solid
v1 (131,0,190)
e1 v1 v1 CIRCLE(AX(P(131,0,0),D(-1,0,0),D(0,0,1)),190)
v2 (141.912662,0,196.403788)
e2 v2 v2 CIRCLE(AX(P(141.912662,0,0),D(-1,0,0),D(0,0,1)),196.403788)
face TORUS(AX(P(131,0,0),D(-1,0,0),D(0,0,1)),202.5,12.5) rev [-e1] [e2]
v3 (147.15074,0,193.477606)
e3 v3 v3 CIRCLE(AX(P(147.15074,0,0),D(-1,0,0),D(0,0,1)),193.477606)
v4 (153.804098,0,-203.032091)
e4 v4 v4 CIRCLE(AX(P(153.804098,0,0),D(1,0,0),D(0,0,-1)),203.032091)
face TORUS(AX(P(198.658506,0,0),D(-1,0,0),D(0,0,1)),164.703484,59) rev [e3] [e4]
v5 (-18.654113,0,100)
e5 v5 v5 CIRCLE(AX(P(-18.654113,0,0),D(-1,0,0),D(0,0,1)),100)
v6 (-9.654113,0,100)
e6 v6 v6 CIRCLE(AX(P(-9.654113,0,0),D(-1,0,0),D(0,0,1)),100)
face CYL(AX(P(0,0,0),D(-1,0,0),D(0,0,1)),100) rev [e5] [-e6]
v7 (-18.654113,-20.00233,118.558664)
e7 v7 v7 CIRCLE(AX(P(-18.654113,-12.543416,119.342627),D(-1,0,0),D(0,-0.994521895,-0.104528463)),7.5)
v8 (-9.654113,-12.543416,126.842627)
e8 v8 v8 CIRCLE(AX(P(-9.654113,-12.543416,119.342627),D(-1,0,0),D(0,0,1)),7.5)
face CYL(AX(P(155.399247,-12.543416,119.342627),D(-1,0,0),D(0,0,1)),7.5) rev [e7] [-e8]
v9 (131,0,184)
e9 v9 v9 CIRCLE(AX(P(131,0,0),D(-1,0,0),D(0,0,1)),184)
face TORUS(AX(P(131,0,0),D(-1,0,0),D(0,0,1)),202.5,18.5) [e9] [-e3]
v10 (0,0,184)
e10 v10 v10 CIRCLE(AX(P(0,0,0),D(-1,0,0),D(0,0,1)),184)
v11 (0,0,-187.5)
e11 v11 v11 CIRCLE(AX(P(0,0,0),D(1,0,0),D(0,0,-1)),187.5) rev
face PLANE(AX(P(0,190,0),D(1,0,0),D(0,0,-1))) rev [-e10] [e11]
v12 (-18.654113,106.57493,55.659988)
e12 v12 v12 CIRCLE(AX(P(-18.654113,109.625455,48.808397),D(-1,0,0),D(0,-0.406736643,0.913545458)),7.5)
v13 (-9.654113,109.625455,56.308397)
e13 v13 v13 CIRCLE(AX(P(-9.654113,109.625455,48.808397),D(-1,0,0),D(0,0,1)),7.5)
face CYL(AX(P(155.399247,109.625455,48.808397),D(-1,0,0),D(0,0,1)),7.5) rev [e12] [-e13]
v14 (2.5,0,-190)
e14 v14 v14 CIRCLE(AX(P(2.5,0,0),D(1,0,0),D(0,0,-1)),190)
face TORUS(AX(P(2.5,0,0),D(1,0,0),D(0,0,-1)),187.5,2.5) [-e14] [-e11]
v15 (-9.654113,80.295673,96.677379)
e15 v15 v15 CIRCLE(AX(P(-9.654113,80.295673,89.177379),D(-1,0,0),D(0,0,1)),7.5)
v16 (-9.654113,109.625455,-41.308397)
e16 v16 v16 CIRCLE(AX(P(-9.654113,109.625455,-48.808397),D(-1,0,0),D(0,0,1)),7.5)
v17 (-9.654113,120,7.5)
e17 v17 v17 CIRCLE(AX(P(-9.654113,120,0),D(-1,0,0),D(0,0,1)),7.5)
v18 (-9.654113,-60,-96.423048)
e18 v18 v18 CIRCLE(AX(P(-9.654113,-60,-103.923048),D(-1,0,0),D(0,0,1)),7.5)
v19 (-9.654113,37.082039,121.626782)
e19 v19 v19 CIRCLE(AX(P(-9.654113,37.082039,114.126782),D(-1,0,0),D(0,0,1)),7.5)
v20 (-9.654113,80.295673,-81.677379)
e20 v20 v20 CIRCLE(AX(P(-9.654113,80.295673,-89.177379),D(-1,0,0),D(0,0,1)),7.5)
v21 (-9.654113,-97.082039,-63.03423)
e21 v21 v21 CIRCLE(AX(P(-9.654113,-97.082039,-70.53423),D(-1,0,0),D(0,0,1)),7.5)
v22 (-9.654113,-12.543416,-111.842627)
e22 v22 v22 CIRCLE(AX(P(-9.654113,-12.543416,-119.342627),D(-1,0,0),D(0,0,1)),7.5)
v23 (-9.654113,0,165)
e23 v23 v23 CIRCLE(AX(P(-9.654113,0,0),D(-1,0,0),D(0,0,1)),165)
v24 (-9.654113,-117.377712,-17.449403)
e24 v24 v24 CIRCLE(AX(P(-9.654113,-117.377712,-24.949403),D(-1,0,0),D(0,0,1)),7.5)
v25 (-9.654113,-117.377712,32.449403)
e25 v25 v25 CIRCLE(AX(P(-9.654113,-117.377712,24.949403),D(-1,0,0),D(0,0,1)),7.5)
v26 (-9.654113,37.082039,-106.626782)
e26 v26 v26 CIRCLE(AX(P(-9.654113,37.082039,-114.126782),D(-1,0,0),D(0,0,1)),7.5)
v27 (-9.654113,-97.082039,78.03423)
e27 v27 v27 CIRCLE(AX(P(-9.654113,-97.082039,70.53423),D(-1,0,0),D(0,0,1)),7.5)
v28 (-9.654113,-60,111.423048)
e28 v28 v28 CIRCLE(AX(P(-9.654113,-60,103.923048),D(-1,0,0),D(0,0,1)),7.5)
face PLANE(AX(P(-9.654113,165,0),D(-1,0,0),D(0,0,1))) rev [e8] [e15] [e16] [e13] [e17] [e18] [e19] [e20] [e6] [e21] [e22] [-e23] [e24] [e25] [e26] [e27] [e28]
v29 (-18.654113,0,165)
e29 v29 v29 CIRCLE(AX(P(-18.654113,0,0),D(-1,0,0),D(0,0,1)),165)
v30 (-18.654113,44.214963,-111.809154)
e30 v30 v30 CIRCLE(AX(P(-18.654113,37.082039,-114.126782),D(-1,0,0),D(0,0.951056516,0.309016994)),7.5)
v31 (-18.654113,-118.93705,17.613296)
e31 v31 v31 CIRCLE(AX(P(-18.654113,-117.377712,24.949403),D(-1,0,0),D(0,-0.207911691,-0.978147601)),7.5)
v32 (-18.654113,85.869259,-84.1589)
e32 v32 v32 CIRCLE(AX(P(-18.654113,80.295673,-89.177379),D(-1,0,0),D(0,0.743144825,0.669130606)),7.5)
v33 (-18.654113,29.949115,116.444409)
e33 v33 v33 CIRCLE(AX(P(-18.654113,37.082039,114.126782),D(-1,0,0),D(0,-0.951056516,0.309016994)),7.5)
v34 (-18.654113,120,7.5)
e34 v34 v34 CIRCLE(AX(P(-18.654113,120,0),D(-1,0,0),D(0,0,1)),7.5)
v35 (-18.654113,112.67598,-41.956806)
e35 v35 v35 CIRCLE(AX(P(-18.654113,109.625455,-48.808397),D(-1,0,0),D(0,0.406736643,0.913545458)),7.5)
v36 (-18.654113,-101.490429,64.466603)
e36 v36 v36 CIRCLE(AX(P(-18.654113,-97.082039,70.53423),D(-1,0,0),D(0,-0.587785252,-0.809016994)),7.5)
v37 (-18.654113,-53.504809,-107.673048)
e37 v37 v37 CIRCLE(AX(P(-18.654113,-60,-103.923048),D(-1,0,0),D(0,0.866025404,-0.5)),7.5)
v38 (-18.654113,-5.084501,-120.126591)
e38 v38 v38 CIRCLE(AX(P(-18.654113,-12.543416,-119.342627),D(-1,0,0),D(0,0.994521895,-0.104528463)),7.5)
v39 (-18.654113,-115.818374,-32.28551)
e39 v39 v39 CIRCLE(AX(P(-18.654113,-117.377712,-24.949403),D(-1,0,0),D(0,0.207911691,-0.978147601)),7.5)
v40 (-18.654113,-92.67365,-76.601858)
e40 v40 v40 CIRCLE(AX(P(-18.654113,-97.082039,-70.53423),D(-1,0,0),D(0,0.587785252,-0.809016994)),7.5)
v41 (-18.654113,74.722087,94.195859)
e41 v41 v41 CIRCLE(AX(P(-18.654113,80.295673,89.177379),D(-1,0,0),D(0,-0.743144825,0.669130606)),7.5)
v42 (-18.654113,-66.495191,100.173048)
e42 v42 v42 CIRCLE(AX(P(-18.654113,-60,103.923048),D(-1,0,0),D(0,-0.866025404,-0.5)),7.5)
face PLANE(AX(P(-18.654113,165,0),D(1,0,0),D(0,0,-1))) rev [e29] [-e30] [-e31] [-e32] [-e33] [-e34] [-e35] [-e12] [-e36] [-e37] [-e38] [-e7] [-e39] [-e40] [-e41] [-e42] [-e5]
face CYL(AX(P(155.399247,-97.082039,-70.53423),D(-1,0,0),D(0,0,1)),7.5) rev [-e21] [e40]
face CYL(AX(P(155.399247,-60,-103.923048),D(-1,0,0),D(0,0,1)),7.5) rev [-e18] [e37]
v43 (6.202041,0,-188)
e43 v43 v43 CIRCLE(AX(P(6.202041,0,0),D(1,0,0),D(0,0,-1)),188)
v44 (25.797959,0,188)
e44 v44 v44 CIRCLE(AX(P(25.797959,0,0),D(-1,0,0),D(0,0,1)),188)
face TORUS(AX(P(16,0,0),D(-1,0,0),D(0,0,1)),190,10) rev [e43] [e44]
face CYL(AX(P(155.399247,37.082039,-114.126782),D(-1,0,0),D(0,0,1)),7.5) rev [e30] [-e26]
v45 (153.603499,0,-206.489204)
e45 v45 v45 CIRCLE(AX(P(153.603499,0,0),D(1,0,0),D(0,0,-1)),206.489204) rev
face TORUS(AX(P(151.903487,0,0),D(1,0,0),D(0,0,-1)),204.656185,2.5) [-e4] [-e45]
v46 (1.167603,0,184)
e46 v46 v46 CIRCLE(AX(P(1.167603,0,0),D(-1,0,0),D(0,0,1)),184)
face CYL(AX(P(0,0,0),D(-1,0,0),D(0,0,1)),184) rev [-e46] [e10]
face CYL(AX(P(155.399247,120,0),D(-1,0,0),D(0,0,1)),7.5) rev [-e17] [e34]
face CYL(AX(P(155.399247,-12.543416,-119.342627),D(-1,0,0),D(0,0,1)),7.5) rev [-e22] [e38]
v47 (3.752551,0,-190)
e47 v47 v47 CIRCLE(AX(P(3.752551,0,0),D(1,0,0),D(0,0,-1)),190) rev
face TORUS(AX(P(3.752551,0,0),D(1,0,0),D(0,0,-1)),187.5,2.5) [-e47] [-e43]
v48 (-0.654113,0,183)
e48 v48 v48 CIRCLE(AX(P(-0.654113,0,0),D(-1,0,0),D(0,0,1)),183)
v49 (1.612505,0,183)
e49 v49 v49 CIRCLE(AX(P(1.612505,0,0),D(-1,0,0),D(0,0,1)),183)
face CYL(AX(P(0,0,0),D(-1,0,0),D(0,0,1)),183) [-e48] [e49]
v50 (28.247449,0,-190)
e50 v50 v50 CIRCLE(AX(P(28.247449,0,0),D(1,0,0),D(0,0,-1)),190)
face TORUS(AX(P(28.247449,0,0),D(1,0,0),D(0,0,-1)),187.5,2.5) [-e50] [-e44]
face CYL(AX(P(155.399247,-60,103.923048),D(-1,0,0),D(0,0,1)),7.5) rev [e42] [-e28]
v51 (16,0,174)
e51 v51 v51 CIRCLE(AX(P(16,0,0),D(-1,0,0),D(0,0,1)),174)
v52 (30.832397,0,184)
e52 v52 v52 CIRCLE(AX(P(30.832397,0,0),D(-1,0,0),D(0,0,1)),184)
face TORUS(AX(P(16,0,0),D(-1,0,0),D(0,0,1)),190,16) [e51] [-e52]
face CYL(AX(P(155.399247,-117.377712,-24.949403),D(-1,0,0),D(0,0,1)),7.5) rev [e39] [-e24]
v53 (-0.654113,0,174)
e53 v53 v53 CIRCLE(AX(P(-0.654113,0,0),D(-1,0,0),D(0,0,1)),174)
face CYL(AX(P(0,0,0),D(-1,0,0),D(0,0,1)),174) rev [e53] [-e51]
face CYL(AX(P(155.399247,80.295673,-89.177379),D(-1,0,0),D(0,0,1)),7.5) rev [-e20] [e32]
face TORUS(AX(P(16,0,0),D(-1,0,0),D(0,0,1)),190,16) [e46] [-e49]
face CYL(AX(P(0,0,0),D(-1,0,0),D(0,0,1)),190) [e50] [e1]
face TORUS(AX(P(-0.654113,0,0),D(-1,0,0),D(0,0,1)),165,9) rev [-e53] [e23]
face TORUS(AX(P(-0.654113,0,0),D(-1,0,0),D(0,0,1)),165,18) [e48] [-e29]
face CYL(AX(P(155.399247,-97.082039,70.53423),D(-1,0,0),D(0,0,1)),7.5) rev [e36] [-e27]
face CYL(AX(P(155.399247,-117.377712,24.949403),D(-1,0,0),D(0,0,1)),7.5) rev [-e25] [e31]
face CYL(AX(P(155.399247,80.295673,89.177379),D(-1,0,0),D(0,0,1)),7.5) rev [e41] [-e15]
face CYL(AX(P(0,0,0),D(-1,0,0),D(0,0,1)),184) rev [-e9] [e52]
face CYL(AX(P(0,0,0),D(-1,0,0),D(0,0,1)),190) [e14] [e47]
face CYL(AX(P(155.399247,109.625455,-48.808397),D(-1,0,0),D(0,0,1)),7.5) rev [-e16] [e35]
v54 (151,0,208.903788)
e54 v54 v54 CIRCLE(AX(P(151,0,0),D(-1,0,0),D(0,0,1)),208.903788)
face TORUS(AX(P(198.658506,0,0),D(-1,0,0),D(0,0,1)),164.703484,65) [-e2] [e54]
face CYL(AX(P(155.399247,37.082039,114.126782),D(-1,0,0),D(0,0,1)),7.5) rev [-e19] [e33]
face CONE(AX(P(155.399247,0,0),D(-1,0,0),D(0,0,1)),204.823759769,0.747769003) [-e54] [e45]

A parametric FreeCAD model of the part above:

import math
import FreeCAD as App
import Part
import Sketcher
Q = App.Units.Quantity


def edges_at(feature, points):
    """Names of the edges that pass closest to the given points."""
    edges = feature.Shape.Edges
    near = lambda p: min(range(len(edges)), key=lambda i: edges[i].distToShape(Part.Vertex(*p))[0])
    return sorted({f"Edge{near(p) + 1}" for p in points})

doc = App.newDocument("Part")
params = doc.addObject("Spreadsheet::Sheet", "Params")
for row, (alias, value) in enumerate([
    ("sketch1_radius", "16 mm"),
    ("sketch1_radius2", "18 mm"),
    ("sketch1_radius3", "9 mm"),
    ("sketch1_radius4", "59 mm"),
    ("sketch1_radius5", "65 mm"),
    ("revolution_angle", "360 deg"),
    ("sketch2_diameter", "15 mm"),
    ("fillet_radius", "2.5 mm"),
    ("fillet2_radius", "2.5 mm"),
    ("fillet3_radius", "2.5 mm"),
], start=1):
    params.set(f"A{row}", alias)
    params.set(f"B{row}", "=" + value)
    params.setAlias(f"B{row}", alias)

body = doc.addObject("PartDesign::Body", "Body")

sketch1 = doc.addObject("Sketcher::SketchObject", "Sketch")
body.addObject(sketch1)
sketch1.AttachmentSupport = (doc.XY_Plane, [""])
sketch1.MapMode = "FlatFace"
sketch1.addGeometry([
    Part.LineSegment(App.Vector(6, 190, 0), App.Vector(0, 190, 0)),
    Part.LineSegment(App.Vector(0, 190, 0), App.Vector(0, 184, 0)),
    Part.LineSegment(App.Vector(0, 184, 0), App.Vector(1.2, 184, 0)),
    Part.ArcOfCircle(Part.Circle(App.Vector(16, 190, 0), App.Vector(0, 0, 1), 16), math.radians(-157.98), math.radians(-154.06)),
    Part.LineSegment(App.Vector(1.6, 183, 0), App.Vector(-0.7, 183, 0)),
    Part.ArcOfCircle(Part.Circle(App.Vector(-0.7, 165, 0), App.Vector(0, 0, 1), 18), math.radians(90), math.radians(180)),
    Part.LineSegment(App.Vector(-18.7, 165, 0), App.Vector(-18.7, 100, 0)),
    Part.LineSegment(App.Vector(-18.7, 100, 0), App.Vector(-9.7, 100, 0)),
    Part.LineSegment(App.Vector(-9.7, 100, 0), App.Vector(-9.7, 165, 0)),
    Part.ArcOfCircle(Part.Circle(App.Vector(-0.7, 165, 0), App.Vector(0, 0, 1), 9), math.radians(90), math.radians(180)),
    Part.LineSegment(App.Vector(-0.7, 174, 0), App.Vector(16, 174, 0)),
    Part.ArcOfCircle(Part.Circle(App.Vector(16, 190, 0), App.Vector(0, 0, 1), 16), math.radians(-90), math.radians(-22)),
    Part.LineSegment(App.Vector(30.8, 184, 0), App.Vector(131, 184, 0)),
    Part.ArcOfCircle(Part.Circle(App.Vector(131, 202.5, 0), App.Vector(0, 0, 1), 18.5), math.radians(-90), math.radians(-29)),
    Part.ArcOfCircle(Part.Circle(App.Vector(198.7, 164.7, 0), App.Vector(0, 0, 1), 59), math.radians(137.16), math.radians(150.81)),
    Part.LineSegment(App.Vector(155.4, 204.8, 0), App.Vector(151, 208.9, 0)),
    Part.ArcOfCircle(Part.Circle(App.Vector(198.7, 164.7, 0), App.Vector(0, 0, 1), 65), math.radians(137.16), math.radians(150.81)),
    Part.ArcOfCircle(Part.Circle(App.Vector(131, 202.5, 0), App.Vector(0, 0, 1), 12.5), math.radians(-90), math.radians(-29)),
    Part.LineSegment(App.Vector(131, 190, 0), App.Vector(26, 190, 0)),
    Part.ArcOfCircle(Part.Circle(App.Vector(16, 190, 0), App.Vector(0, 0, 1), 10), math.radians(180), math.radians(360)),
], False)
sketch1.addConstraint([
    Sketcher.Constraint("Coincident", 0, 2, 1, 1),
    Sketcher.Constraint("Coincident", 1, 2, 2, 1),
    Sketcher.Constraint("Coincident", 2, 2, 3, 1),
    Sketcher.Constraint("Coincident", 3, 2, 4, 1),
    Sketcher.Constraint("Tangent", 4, 2, 5, 1),
    Sketcher.Constraint("Tangent", 5, 2, 6, 1),
    Sketcher.Constraint("Coincident", 6, 2, 7, 1),
    Sketcher.Constraint("Coincident", 7, 2, 8, 1),
    Sketcher.Constraint("Tangent", 8, 2, 9, 2),
    Sketcher.Constraint("Tangent", 9, 1, 10, 1),
    Sketcher.Constraint("Tangent", 10, 2, 11, 1),
    Sketcher.Constraint("Coincident", 11, 2, 12, 1),
    Sketcher.Constraint("Tangent", 12, 2, 13, 1),
    Sketcher.Constraint("Tangent", 13, 2, 14, 2),
    Sketcher.Constraint("Coincident", 14, 1, 15, 1),
    Sketcher.Constraint("Coincident", 15, 2, 16, 1),
    Sketcher.Constraint("Tangent", 16, 2, 17, 2),
    Sketcher.Constraint("Tangent", 17, 1, 18, 1),
    Sketcher.Constraint("Coincident", 18, 2, 19, 2),
    Sketcher.Constraint("Coincident", 19, 1, 0, 1),
    Sketcher.Constraint("Horizontal", 0),
    Sketcher.Constraint("Vertical", 1),
    Sketcher.Constraint("Horizontal", 2),
    Sketcher.Constraint("Horizontal", 4),
    Sketcher.Constraint("Vertical", 6),
    Sketcher.Constraint("Horizontal", 7),
    Sketcher.Constraint("Vertical", 8),
    Sketcher.Constraint("Horizontal", 10),
    Sketcher.Constraint("Horizontal", 12),
    Sketcher.Constraint("Horizontal", 18),
    Sketcher.Constraint("Coincident", 9, 3, 5, 3),
    Sketcher.Constraint("Coincident", 11, 3, 3, 3),
    Sketcher.Constraint("Coincident", 16, 3, 14, 3),
    Sketcher.Constraint("Coincident", 17, 3, 13, 3),
    Sketcher.Constraint("Coincident", 19, 3, 3, 3),
    Sketcher.Constraint("Equal", 3, 11),
    Sketcher.Constraint("PointOnObject", 0, 2, -2),
    Sketcher.Constraint("Horizontal", 19, 3, 0, 2),
    Sketcher.Constraint("Horizontal", 2, 2, 11, 2),
    Sketcher.Constraint("Horizontal", 0, 2, 17, 1),
    Sketcher.Constraint("Equal", 0, 1),
    Sketcher.Constraint("Radius", 3, Q("16 mm")),
    Sketcher.Constraint("Radius", 5, Q("18 mm")),
    Sketcher.Constraint("Radius", 9, Q("9 mm")),
    Sketcher.Constraint("Radius", 14, Q("59 mm")),
    Sketcher.Constraint("Radius", 16, Q("65 mm")),
    Sketcher.Constraint("Radius", 19, Q("10 mm")),
    Sketcher.Constraint("Radius", 13, Q("18.5 mm")),
    Sketcher.Constraint("DistanceX", 18, 2, 18, 1, Q("105 mm")),
    Sketcher.Constraint("DistanceY", 6, 2, 6, 1, Q("65 mm")),
    Sketcher.Constraint("DistanceY", -1, 1, 3, 3, Q("190 mm")),
    Sketcher.Constraint("DistanceX", -1, 1, 15, 2, Q("151 mm")),
    Sketcher.Constraint("DistanceY", 16, 2, 15, 2, Q("12.5 mm")),
    Sketcher.Constraint("DistanceX", 4, 2, 4, 1, Q("2.266619 mm")),
    Sketcher.Constraint("DistanceY", -1, 1, 14, 1, Q("204.82376 mm")),
])
sketch1.setExpression("Constraints[41]", "Params.sketch1_radius")
sketch1.setExpression("Constraints[42]", "Params.sketch1_radius2")
sketch1.setExpression("Constraints[43]", "Params.sketch1_radius3")
sketch1.setExpression("Constraints[44]", "Params.sketch1_radius4")
sketch1.setExpression("Constraints[45]", "Params.sketch1_radius5")
revolution = doc.addObject("PartDesign::Revolution", "Revolution")
body.addObject(revolution)
revolution.Profile = sketch1
revolution.ReferenceAxis = (sketch1, ["H_Axis"])
revolution.setExpression("Angle", "Params.revolution_angle")

sketch2 = doc.addObject("Sketcher::SketchObject", "Sketch001")
body.addObject(sketch2)
sketch2.AttachmentSupport = (doc.YZ_Plane, [""])
sketch2.MapMode = "FlatFace"
sketch2.AttachmentOffset = App.Placement(App.Vector(0, 0, -18.654113), App.Rotation())
sketch2.addGeometry(Part.Circle(App.Vector(120, 0, 0), App.Vector(0, 0, 1), 8), False)
sketch2.addConstraint([
    Sketcher.Constraint("PointOnObject", 0, 3, -1),
    Sketcher.Constraint("Diameter", 0, Q("15 mm")),
    Sketcher.Constraint("DistanceX", -1, 1, 0, 3, Q("120 mm")),
])
sketch2.setExpression("Constraints[1]", "Params.sketch2_diameter")
pocket1 = doc.addObject("PartDesign::Pocket", "Pocket")
body.addObject(pocket1)
pocket1.Profile = sketch2
pocket1.Type = "ThroughAll"
pocket1.Reversed = True
doc.recompute()

polarpattern = doc.addObject("PartDesign::PolarPattern", "PolarPattern")
body.addObject(polarpattern)
polarpattern.Originals = [pocket1]
polarpattern.Axis = (doc.X_Axis, [""])
polarpattern.Angle = 360
polarpattern.Occurrences = 15
body.Tip = polarpattern
doc.recompute()

fillet = doc.addObject("PartDesign::Fillet", "Fillet")
body.addObject(fillet)
fillet.Base = (polarpattern, edges_at(polarpattern, [(155.399, 0, -204.824)]))
fillet.setExpression("Radius", "Params.fillet_radius")
doc.recompute()

fillet2 = doc.addObject("PartDesign::Fillet", "Fillet001")
body.addObject(fillet2)
fillet2.Base = (fillet, edges_at(fillet, [(6, 0, -190), (26, 0, -190)]))
fillet2.setExpression("Radius", "Params.fillet2_radius")
doc.recompute()

fillet3 = doc.addObject("PartDesign::Fillet", "Fillet002")
body.addObject(fillet3)
fillet3.Base = (fillet2, edges_at(fillet2, [(0, 0, -190)]))
fillet3.setExpression("Radius", "Params.fillet3_radius")

doc.recompute()
